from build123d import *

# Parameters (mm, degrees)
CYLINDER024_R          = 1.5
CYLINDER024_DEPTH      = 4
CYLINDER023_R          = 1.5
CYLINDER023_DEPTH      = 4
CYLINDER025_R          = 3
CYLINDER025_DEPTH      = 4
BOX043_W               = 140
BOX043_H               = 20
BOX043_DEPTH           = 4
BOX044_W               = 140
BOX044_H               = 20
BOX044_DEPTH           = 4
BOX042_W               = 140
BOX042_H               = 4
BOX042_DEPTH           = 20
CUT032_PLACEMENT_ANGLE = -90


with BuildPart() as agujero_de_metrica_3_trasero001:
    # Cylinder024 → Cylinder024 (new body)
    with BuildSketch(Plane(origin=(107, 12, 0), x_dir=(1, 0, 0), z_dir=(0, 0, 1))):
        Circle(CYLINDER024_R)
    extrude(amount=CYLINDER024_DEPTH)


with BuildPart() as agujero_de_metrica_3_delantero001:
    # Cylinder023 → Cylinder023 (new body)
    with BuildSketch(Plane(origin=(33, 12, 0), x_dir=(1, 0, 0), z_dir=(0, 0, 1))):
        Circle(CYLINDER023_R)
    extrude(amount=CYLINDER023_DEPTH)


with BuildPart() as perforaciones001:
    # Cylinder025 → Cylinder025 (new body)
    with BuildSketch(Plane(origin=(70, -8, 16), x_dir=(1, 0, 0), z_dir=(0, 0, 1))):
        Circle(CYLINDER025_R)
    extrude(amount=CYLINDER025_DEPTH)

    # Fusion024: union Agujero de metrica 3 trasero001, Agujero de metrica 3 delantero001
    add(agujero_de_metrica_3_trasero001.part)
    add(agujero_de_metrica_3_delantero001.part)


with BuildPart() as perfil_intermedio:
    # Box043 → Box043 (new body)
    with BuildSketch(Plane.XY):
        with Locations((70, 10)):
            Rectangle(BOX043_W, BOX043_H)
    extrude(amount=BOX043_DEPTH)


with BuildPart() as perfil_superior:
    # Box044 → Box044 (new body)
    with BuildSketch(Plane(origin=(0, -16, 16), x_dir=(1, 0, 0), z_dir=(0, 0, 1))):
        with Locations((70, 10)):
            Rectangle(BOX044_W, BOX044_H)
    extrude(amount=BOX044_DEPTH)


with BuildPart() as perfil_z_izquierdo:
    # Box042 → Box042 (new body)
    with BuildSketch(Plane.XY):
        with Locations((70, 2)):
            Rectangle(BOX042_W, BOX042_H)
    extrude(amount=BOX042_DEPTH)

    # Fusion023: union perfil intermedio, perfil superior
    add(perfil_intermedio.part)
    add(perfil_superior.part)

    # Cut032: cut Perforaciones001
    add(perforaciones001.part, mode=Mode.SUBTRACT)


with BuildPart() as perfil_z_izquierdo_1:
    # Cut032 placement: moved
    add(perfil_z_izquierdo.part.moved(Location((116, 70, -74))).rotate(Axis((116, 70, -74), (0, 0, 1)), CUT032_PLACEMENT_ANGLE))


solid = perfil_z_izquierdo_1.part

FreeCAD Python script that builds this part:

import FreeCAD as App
import Part
import Sketcher
from FreeCAD import Vector


def add_polygon(sketch, points):
    """Adds a closed chain of lines whose ends are joined by coincident constraints."""
    first, n = sketch.GeometryCount, len(points)
    for a, b in zip(points, points[1:] + points[:1]):
        sketch.addGeometry(Part.LineSegment(App.Vector(*a, 0), App.Vector(*b, 0)), False)
    for i in range(n):
        sketch.addConstraint(Sketcher.Constraint("Coincident", first + i, 2, first + (i + 1) % n, 1))

doc = App.newDocument("Part")
body = doc.addObject("PartDesign::Body", "Body")

# Sketch on XY plane
sketch1 = doc.addObject("Sketcher::SketchObject", "Sketch")
body.addObject(sketch1)
sketch1.AttachmentSupport = (doc.XY_Plane, [""])
sketch1.MapMode = "FlatFace"
sketch1.addGeometry(Part.Circle(Vector(107, 12, 0), Vector(0, 0, 1), 1.5), False)
sketch1.addConstraint([
    Sketcher.Constraint("Diameter", 0, 3.0),
    Sketcher.Constraint("DistanceX", -1, 1, 0, 3, 107.0),
    Sketcher.Constraint("DistanceY", -1, 1, 0, 3, 12.0),
])
pad1 = doc.addObject("PartDesign::Pad", "Pad")
body.addObject(pad1)
pad1.Profile = sketch1
pad1.Length = 4
body2 = doc.addObject("PartDesign::Body", "Body001")

# Sketch on XY plane
sketch2 = doc.addObject("Sketcher::SketchObject", "Sketch001")
body2.addObject(sketch2)
sketch2.AttachmentSupport = (doc.getObject("XY_Plane001"), [""])
sketch2.MapMode = "FlatFace"
sketch2.addGeometry(Part.Circle(Vector(33, 12, 0), Vector(0, 0, 1), 1.5), False)
sketch2.addConstraint([
    Sketcher.Constraint("Diameter", 0, 3.0),
    Sketcher.Constraint("DistanceX", -1, 1, 0, 3, 33.0),
    Sketcher.Constraint("DistanceY", -1, 1, 0, 3, 12.0),
])
pad2 = doc.addObject("PartDesign::Pad", "Pad001")
body2.addObject(pad2)
pad2.Profile = sketch2
pad2.Length = 4
body3 = doc.addObject("PartDesign::Body", "Body002")
body3.AllowCompound = True

# Sketch on XY plane
sketch3 = doc.addObject("Sketcher::SketchObject", "Sketch002")
body3.addObject(sketch3)
sketch3.AttachmentSupport = (doc.getObject("XY_Plane002"), [""])
sketch3.MapMode = "FlatFace"
sketch3.AttachmentOffset = App.Placement(Vector(0, 0, 16), App.Rotation())
sketch3.addGeometry(Part.Circle(Vector(70, -8, 0), Vector(0, 0, 1), 3), False)
sketch3.addConstraint([
    Sketcher.Constraint("Diameter", 0, 6.0),
    Sketcher.Constraint("DistanceX", -1, 1, 0, 3, 70.0),
    Sketcher.Constraint("DistanceY", 0, 3, -1, 1, 8.0),
])
pad3 = doc.addObject("PartDesign::Pad", "Pad002")
body3.addObject(pad3)
pad3.Profile = sketch3
pad3.Length = 4
doc.recompute()

boolean = doc.addObject("PartDesign::Boolean", "Boolean")
body3.addObject(boolean)
boolean.Type = "Fuse"
boolean.addObjects([body])
doc.recompute()

boolean2 = doc.addObject("PartDesign::Boolean", "Boolean001")
body3.addObject(boolean2)
boolean2.Type = "Fuse"
boolean2.addObjects([body2])
body4 = doc.addObject("PartDesign::Body", "Body003")

# Sketch on XY plane
sketch4 = doc.addObject("Sketcher::SketchObject", "Sketch003")
body4.addObject(sketch4)
sketch4.AttachmentSupport = (doc.getObject("XY_Plane003"), [""])
sketch4.MapMode = "FlatFace"
add_polygon(sketch4, [(0, 20), (0, 0), (140, 0), (140, 20)])  # lines 0-3
sketch4.addConstraint([
    Sketcher.Constraint("Vertical", 0),
    Sketcher.Constraint("Horizontal", 1),
    Sketcher.Constraint("Vertical", 2),
    Sketcher.Constraint("Horizontal", 3),
    Sketcher.Constraint("Coincident", 0, 2, -1, 1),
    Sketcher.Constraint("DistanceX", 1, 1, 1, 2, 140.0),
    Sketcher.Constraint("DistanceY", 0, 2, 0, 1, 20.0),
])
pad4 = doc.addObject("PartDesign::Pad", "Pad003")
body4.addObject(pad4)
pad4.Profile = sketch4
pad4.Length = 4
body5 = doc.addObject("PartDesign::Body", "Body004")

# Sketch on XY plane
sketch5 = doc.addObject("Sketcher::SketchObject", "Sketch004")
body5.addObject(sketch5)
sketch5.AttachmentSupport = (doc.getObject("XY_Plane004"), [""])
sketch5.MapMode = "FlatFace"
sketch5.AttachmentOffset = App.Placement(Vector(0, 0, 16), App.Rotation())
add_polygon(sketch5, [(0, 4), (0, -16), (140, -16), (140, 4)])  # lines 0-3
sketch5.addConstraint([
    Sketcher.Constraint("Vertical", 0),
    Sketcher.Constraint("Horizontal", 1),
    Sketcher.Constraint("Vertical", 2),
    Sketcher.Constraint("Horizontal", 3),
    Sketcher.Constraint("PointOnObject", 0, 2, -2),
    Sketcher.Constraint("DistanceX", 1, 1, 1, 2, 140.0),
    Sketcher.Constraint("DistanceY", 0, 2, 0, 1, 20.0),
    Sketcher.Constraint("DistanceY", 0, 2, -1, 1, 16.0),
])
pad5 = doc.addObject("PartDesign::Pad", "Pad004")
body5.addObject(pad5)
pad5.Profile = sketch5
pad5.Length = 4
body6 = doc.addObject("PartDesign::Body", "Body005")

# Sketch on XY plane
sketch6 = doc.addObject("Sketcher::SketchObject", "Sketch005")
body6.addObject(sketch6)
sketch6.AttachmentSupport = (doc.getObject("XY_Plane005"), [""])
sketch6.MapMode = "FlatFace"
add_polygon(sketch6, [(0, 4), (0, 0), (140, 0), (140, 4)])  # lines 0-3
sketch6.addConstraint([
    Sketcher.Constraint("Vertical", 0),
    Sketcher.Constraint("Horizontal", 1),
    Sketcher.Constraint("Vertical", 2),
    Sketcher.Constraint("Horizontal", 3),
    Sketcher.Constraint("Coincident", 0, 2, -1, 1),
    Sketcher.Constraint("DistanceX", 1, 1, 1, 2, 140.0),
    Sketcher.Constraint("DistanceY", 0, 2, 0, 1, 4.0),
])
pad6 = doc.addObject("PartDesign::Pad", "Pad005")
body6.addObject(pad6)
pad6.Profile = sketch6
pad6.Length = 20
doc.recompute()

boolean3 = doc.addObject("PartDesign::Boolean", "Boolean002")
body6.addObject(boolean3)
boolean3.Type = "Fuse"
boolean3.addObjects([body4])
doc.recompute()

boolean4 = doc.addObject("PartDesign::Boolean", "Boolean003")
body6.addObject(boolean4)
boolean4.Type = "Fuse"
boolean4.addObjects([body5])
doc.recompute()

boolean5 = doc.addObject("PartDesign::Boolean", "Boolean004")
body6.addObject(boolean5)
boolean5.Type = "Cut"
boolean5.addObjects([body3])
body7 = doc.addObject("PartDesign::Body", "Body006")
doc.recompute()

body6.Placement = App.Placement(Vector(116, 70, -74), App.Rotation(Vector(0, 0, 1), 270))
boolean6 = doc.addObject("PartDesign::Boolean", "Boolean005")
body7.addObject(boolean6)
boolean6.Type = "Fuse"
boolean6.addObjects([body6])

doc.recompute()
